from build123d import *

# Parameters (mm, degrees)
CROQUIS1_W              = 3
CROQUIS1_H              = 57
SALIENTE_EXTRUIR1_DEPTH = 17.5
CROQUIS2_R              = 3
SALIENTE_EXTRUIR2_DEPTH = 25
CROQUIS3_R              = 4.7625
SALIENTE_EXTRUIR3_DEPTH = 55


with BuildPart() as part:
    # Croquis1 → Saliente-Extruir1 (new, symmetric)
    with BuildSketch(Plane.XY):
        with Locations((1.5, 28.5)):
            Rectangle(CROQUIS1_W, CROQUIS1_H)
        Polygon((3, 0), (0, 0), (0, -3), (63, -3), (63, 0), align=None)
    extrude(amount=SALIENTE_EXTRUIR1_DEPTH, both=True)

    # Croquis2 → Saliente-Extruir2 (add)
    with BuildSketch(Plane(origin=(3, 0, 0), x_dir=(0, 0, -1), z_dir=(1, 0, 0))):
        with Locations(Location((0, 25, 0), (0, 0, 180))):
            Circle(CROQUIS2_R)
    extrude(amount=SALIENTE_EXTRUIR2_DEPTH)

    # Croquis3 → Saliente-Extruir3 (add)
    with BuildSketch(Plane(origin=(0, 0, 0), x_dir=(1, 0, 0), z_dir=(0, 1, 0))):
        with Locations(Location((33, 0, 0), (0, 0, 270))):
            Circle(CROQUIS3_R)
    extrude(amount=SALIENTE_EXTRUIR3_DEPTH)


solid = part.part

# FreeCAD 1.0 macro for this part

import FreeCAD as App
import Part
import Sketcher
Q = App.Units.Quantity

doc = App.newDocument("Part")
body = doc.addObject("PartDesign::Body", "Body")

sketch1 = doc.addObject("Sketcher::SketchObject", "Sketch")
body.addObject(sketch1)
sketch1.AttachmentSupport = (doc.XY_Plane, [""])
sketch1.MapMode = "FlatFace"
sketch1.addGeometry([
    Part.LineSegment(App.Vector(0, 57, 0), App.Vector(0, -3, 0)),
    Part.LineSegment(App.Vector(0, -3, 0), App.Vector(63, -3, 0)),
    Part.LineSegment(App.Vector(63, -3, 0), App.Vector(63, 0, 0)),
    Part.LineSegment(App.Vector(63, 0, 0), App.Vector(3, 0, 0)),
    Part.LineSegment(App.Vector(3, 0, 0), App.Vector(3, 57, 0)),
    Part.LineSegment(App.Vector(3, 57, 0), App.Vector(0, 57, 0)),
], False)
sketch1.addConstraint([
    Sketcher.Constraint("Coincident", 0, 2, 1, 1),
    Sketcher.Constraint("Coincident", 1, 2, 2, 1),
    Sketcher.Constraint("Coincident", 2, 2, 3, 1),
    Sketcher.Constraint("Coincident", 3, 2, 4, 1),
    Sketcher.Constraint("Coincident", 4, 2, 5, 1),
    Sketcher.Constraint("Coincident", 5, 2, 0, 1),
    Sketcher.Constraint("Vertical", 0),
    Sketcher.Constraint("Horizontal", 1),
    Sketcher.Constraint("Vertical", 2),
    Sketcher.Constraint("Horizontal", 3),
    Sketcher.Constraint("Vertical", 4),
    Sketcher.Constraint("Horizontal", 5),
    Sketcher.Constraint("PointOnObject", 0, 2, -2),
    Sketcher.Constraint("PointOnObject", 2, 2, -1),
    Sketcher.Constraint("Equal", 3, 0),
    Sketcher.Constraint("Equal", 5, 2),
    Sketcher.Constraint("DistanceX", 1, 1, 1, 2, Q("63 mm")),
    Sketcher.Constraint("DistanceX", 3, 2, 3, 1, Q("60 mm")),
])
pad1 = doc.addObject("PartDesign::Pad", "Pad")
body.addObject(pad1)
pad1.Profile = sketch1
pad1.Length = 35
pad1.Midplane = True

sketch2 = doc.addObject("Sketcher::SketchObject", "Sketch001")
body.addObject(sketch2)
sketch2.AttachmentSupport = (doc.YZ_Plane, [""])
sketch2.MapMode = "FlatFace"
sketch2.AttachmentOffset = App.Placement(App.Vector(0, 0, 3), App.Rotation())
sketch2.addGeometry(Part.Circle(App.Vector(25, 0, 0), App.Vector(0, 0, 1), 3), False)
sketch2.addConstraint([
    Sketcher.Constraint("PointOnObject", 0, 3, -1),
    Sketcher.Constraint("Diameter", 0, Q("6 mm")),
    Sketcher.Constraint("DistanceX", -1, 1, 0, 3, Q("25 mm")),
])
pad2 = doc.addObject("PartDesign::Pad", "Pad001")
body.addObject(pad2)
pad2.Profile = sketch2
pad2.Length = 25

sketch3 = doc.addObject("Sketcher::SketchObject", "Sketch002")
body.addObject(sketch3)
sketch3.AttachmentSupport = (doc.XZ_Plane, [""])
sketch3.MapMode = "FlatFace"
sketch3.addGeometry(Part.Circle(App.Vector(33, 0, 0), App.Vector(0, 0, 1), 4.7625), False)
sketch3.addConstraint([
    Sketcher.Constraint("PointOnObject", 0, 3, -1),
    Sketcher.Constraint("Diameter", 0, Q("9.525 mm")),
    Sketcher.Constraint("DistanceX", -1, 1, 0, 3, Q("33 mm")),
])
pad3 = doc.addObject("PartDesign::Pad", "Pad002")
body.addObject(pad3)
pad3.Profile = sketch3
pad3.Length = 55
pad3.Reversed = True

doc.recompute()
